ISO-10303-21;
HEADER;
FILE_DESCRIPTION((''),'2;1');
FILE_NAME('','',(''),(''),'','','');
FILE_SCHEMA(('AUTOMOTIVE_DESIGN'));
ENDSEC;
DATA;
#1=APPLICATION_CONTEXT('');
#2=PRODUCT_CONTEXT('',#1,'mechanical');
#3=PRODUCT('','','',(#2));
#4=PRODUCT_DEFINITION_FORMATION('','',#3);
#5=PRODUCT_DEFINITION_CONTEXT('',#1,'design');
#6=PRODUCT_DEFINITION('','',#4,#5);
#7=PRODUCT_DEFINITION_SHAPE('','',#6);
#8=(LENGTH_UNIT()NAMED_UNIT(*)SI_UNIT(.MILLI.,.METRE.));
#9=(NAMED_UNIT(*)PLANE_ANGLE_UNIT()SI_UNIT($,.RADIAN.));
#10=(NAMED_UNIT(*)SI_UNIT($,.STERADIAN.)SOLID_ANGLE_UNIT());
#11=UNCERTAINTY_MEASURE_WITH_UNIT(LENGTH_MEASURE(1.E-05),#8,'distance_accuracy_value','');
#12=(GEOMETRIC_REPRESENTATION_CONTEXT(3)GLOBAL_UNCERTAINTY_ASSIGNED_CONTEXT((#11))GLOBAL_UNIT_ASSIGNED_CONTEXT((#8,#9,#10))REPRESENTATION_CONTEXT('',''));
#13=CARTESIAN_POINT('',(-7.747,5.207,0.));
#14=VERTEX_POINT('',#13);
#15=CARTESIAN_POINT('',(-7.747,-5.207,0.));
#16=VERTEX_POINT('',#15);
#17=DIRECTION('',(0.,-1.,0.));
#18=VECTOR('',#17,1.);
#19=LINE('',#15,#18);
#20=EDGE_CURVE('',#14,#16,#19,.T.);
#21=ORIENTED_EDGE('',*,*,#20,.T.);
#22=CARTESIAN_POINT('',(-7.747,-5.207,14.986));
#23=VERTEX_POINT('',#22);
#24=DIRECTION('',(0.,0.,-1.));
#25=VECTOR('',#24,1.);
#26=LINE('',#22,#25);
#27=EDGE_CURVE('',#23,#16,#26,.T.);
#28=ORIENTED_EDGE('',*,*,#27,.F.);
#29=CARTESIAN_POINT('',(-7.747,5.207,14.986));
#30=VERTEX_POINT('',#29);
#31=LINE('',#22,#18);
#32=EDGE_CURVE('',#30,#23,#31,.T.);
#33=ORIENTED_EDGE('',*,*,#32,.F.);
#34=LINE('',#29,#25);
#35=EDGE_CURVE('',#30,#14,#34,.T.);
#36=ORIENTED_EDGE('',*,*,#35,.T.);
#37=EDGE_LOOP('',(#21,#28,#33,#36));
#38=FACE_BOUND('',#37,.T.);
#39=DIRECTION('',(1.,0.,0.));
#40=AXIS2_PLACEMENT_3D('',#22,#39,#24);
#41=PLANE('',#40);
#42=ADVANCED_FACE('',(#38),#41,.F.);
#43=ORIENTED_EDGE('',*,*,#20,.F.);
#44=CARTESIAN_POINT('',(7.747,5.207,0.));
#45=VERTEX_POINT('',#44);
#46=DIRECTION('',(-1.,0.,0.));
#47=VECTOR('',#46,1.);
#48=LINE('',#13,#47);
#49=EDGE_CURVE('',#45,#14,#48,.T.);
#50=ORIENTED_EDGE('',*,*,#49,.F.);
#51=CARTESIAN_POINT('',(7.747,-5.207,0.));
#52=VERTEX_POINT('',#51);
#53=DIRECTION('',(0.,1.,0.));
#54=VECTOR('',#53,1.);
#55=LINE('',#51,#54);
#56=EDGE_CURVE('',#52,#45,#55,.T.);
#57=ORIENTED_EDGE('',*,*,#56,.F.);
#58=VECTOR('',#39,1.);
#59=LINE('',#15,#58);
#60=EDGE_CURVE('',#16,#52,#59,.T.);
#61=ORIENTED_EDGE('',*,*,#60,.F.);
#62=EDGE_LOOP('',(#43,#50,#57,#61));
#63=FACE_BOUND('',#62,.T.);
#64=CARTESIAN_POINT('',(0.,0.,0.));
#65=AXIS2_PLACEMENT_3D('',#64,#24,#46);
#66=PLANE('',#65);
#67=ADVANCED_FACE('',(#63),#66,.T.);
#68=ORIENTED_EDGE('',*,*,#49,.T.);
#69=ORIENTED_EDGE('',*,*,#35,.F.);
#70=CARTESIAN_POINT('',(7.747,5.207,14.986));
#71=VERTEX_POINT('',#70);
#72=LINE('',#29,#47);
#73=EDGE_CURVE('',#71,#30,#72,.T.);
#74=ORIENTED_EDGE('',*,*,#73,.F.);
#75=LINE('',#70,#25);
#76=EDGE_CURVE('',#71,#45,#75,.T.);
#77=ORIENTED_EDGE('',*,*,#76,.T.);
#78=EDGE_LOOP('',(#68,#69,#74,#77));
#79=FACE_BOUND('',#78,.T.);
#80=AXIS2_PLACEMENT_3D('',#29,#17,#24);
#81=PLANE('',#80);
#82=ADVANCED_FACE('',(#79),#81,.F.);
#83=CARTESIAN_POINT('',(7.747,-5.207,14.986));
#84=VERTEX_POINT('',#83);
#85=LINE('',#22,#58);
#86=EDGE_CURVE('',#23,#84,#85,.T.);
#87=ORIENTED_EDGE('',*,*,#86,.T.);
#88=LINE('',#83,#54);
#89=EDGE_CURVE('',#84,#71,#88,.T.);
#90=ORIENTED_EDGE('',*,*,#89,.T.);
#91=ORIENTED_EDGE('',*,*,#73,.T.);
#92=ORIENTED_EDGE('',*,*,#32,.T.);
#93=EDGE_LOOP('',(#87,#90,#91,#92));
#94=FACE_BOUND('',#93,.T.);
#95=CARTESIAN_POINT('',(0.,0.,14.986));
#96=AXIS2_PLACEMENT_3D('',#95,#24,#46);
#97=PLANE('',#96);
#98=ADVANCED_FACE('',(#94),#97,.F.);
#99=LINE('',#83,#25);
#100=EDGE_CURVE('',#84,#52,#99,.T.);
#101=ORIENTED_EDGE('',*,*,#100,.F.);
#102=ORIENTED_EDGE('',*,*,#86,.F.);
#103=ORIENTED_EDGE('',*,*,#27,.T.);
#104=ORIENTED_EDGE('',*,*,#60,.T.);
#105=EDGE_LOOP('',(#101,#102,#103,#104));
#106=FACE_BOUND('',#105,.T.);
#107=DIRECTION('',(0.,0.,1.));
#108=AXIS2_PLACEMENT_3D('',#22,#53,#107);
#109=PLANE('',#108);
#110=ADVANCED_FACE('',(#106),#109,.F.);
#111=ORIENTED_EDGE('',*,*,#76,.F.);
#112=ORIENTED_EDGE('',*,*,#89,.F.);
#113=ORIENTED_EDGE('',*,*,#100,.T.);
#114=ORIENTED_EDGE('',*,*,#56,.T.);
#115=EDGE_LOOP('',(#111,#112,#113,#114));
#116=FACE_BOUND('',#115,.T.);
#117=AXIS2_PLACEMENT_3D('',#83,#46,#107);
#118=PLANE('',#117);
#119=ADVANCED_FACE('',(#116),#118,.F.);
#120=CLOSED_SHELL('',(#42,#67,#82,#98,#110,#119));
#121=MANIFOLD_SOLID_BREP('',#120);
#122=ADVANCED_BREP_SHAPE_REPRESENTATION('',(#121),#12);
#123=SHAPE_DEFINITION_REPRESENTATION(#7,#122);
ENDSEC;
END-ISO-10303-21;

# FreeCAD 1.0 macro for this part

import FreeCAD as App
import Part
import Sketcher
Q = App.Units.Quantity

doc = App.newDocument("Part")
params = doc.addObject("Spreadsheet::Sheet", "Params")
for row, (alias, value) in enumerate([
    ("sketch1_width", "0.61 in"),
    ("sketch1_height", "0.41 in"),
    ("pad1_length", "0.59 in"),
], start=1):
    params.set(f"A{row}", alias)
    params.set(f"B{row}", "=" + value)
    params.setAlias(f"B{row}", alias)

body = doc.addObject("PartDesign::Body", "Body")

sketch1 = doc.addObject("Sketcher::SketchObject", "Sketch")
body.addObject(sketch1)
sketch1.AttachmentSupport = (doc.XY_Plane, [""])
sketch1.MapMode = "FlatFace"
sketch1.addGeometry([
    Part.LineSegment(App.Vector(-8, 5, 0), App.Vector(-8, -5, 0)),
    Part.LineSegment(App.Vector(-8, -5, 0), App.Vector(8, -5, 0)),
    Part.LineSegment(App.Vector(8, -5, 0), App.Vector(8, 5, 0)),
    Part.LineSegment(App.Vector(8, 5, 0), App.Vector(-8, 5, 0)),
], False)
sketch1.addConstraint([
    Sketcher.Constraint("Coincident", 0, 2, 1, 1),
    Sketcher.Constraint("Coincident", 1, 2, 2, 1),
    Sketcher.Constraint("Coincident", 2, 2, 3, 1),
    Sketcher.Constraint("Coincident", 3, 2, 0, 1),
    Sketcher.Constraint("Vertical", 0),
    Sketcher.Constraint("Horizontal", 1),
    Sketcher.Constraint("Vertical", 2),
    Sketcher.Constraint("Horizontal", 3),
    Sketcher.Constraint("Symmetric", 0, 2, 2, 2, -1, 1),
    Sketcher.Constraint("DistanceX", 1, 1, 1, 2, Q("0.61 in")),
    Sketcher.Constraint("DistanceY", 0, 2, 0, 1, Q("0.41 in")),
])
sketch1.setExpression("Constraints[9]", "Params.sketch1_width")
sketch1.setExpression("Constraints[10]", "Params.sketch1_height")
pad1 = doc.addObject("PartDesign::Pad", "Pad")
body.addObject(pad1)
pad1.Profile = sketch1
pad1.setExpression("Length", "Params.pad1_length")

doc.recompute()
